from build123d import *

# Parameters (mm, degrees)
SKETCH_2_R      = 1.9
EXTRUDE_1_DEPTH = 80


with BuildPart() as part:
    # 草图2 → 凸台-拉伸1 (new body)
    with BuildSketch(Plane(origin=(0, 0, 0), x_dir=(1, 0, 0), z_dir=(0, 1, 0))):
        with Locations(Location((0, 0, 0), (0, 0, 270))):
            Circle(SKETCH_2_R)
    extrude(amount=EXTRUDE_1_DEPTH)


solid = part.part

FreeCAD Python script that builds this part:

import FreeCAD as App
import Part
import Sketcher

V = App.Vector
Q = App.Units.Quantity

doc = App.newDocument("Part")
body = doc.addObject("PartDesign::Body", "Body")

sketch1 = body.newObject("Sketcher::SketchObject", "Sketch")
sketch1.AttachmentSupport = (doc.getObject("XZ_Plane"), [""])
sketch1.MapMode = "FlatFace"
sketch1.addGeometry(Part.Circle(V(0, 0, 0), V(0, 0, 1), 1.9), False)
sketch1.addConstraint(Sketcher.Constraint("Coincident", 0, 3, -1, 1))
sketch1.addConstraint(Sketcher.Constraint("Diameter", 0, Q("3.8 mm")))
pad1 = body.newObject("PartDesign::Pad", "Pad")
pad1.Profile = sketch1
pad1.Length = 80
pad1.Reversed = True

doc.recompute()
